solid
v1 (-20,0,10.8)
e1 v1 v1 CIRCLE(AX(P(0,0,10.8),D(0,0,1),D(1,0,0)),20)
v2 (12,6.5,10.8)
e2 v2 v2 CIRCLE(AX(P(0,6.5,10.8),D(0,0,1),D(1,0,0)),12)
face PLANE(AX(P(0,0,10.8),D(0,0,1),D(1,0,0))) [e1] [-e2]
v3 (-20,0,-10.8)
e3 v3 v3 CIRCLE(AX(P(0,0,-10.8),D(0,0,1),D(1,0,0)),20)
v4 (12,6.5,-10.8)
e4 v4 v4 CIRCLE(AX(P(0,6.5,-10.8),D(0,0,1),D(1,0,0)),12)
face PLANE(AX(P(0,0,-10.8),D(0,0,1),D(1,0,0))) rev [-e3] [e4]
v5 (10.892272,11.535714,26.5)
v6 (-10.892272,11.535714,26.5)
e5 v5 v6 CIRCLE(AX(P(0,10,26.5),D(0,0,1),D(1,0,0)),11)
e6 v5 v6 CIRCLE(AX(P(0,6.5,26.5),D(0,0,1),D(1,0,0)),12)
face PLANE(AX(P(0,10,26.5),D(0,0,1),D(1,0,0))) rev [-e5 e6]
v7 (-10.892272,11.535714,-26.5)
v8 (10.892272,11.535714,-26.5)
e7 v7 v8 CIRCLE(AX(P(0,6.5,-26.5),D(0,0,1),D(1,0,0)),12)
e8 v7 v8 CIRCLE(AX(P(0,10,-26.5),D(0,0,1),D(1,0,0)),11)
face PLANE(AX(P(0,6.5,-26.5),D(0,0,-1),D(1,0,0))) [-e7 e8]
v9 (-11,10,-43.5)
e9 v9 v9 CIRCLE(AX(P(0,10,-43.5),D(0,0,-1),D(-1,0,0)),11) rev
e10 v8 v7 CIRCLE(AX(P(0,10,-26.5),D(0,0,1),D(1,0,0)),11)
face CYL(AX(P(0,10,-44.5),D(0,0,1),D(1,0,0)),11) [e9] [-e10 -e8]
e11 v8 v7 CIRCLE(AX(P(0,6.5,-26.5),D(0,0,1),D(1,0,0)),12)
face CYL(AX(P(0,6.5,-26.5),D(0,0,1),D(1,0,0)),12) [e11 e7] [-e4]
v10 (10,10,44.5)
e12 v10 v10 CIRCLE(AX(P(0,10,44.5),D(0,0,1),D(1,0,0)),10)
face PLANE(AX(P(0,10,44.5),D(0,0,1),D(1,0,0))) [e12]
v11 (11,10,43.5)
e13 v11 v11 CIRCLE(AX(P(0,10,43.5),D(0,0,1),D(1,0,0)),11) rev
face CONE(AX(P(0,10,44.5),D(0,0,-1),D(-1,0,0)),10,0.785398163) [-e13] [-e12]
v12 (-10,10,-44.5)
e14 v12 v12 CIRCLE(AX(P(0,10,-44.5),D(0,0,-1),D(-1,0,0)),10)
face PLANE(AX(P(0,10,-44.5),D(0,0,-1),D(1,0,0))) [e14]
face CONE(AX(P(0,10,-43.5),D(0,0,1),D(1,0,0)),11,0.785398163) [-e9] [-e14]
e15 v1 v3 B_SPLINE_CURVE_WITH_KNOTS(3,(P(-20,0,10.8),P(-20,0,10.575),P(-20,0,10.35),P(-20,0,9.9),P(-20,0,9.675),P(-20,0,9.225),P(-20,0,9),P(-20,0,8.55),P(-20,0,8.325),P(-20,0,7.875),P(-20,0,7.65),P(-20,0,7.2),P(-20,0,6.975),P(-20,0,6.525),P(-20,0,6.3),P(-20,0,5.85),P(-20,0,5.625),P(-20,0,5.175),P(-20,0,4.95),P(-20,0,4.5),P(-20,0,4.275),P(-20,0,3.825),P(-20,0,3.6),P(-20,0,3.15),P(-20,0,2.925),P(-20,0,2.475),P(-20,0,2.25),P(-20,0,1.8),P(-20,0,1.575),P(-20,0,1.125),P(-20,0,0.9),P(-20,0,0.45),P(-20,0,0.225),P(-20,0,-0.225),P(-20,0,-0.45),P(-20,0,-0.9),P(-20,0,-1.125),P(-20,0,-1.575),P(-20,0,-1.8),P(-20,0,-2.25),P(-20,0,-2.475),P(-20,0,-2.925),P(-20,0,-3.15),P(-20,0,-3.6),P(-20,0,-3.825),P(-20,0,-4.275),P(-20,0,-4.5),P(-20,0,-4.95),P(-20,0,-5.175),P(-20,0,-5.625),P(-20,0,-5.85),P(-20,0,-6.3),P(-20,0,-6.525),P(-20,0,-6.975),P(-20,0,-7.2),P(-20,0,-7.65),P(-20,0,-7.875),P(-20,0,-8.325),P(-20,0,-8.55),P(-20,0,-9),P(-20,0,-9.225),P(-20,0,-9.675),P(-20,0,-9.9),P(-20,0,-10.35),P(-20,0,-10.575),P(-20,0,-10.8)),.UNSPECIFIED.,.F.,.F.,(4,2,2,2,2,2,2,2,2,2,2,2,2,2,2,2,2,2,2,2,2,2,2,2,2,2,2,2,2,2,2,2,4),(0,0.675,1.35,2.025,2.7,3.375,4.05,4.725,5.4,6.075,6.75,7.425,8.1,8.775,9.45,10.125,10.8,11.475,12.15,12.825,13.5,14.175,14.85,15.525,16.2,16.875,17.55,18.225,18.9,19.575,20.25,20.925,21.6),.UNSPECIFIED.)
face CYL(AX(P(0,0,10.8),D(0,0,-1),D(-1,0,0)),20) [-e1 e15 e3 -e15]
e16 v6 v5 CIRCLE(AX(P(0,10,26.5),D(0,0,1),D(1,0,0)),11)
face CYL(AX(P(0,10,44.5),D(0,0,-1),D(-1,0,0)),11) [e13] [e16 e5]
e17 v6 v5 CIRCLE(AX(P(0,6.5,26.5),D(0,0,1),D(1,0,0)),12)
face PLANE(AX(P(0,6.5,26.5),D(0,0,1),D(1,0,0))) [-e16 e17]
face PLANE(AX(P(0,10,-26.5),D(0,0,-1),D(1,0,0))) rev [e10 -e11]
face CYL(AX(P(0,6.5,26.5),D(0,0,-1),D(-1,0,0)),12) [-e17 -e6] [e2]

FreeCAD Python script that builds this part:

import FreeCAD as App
import Part
import Sketcher
from FreeCAD import Vector


def edges_at(feature, points):
    """Names of the edges that pass closest to the given points."""
    edges = feature.Shape.Edges
    near = lambda p: min(range(len(edges)), key=lambda i: edges[i].distToShape(Part.Vertex(*p))[0])
    return sorted({f"Edge{near(p) + 1}" for p in points})

doc = App.newDocument("Part")
body = doc.addObject("PartDesign::Body", "Body")

# Sketch on XY plane
sketch1 = body.newObject("Sketcher::SketchObject", "Sketch")
sketch1.AttachmentSupport = (doc.getObject("XY_Plane"), [""])
sketch1.MapMode = "FlatFace"
sketch1.addGeometry(Part.Circle(Vector(0, 0, 0), Vector(0, 0, 1), 20), False)
sketch1.addConstraint([
    Sketcher.Constraint("Coincident", 0, 3, -1, 1),
    Sketcher.Constraint("Diameter", 0, 40.0),
])
pad1 = body.newObject("PartDesign::Pad", "Pad")
pad1.Profile = sketch1
pad1.Length = 21.6
pad1.Midplane = True

# Sketch on XY plane
sketch2 = body.newObject("Sketcher::SketchObject", "Sketch001")
sketch2.AttachmentSupport = (doc.getObject("XY_Plane"), [""])
sketch2.MapMode = "FlatFace"
sketch2.AttachmentOffset = App.Placement(Vector(0, 0, 10.8), App.Rotation())
sketch2.addGeometry(Part.Circle(Vector(0, 6, 0), Vector(0, 0, 1), 12), False)
sketch2.addConstraint([
    Sketcher.Constraint("PointOnObject", 0, 3, -2),
    Sketcher.Constraint("Diameter", 0, 24.0),
    Sketcher.Constraint("DistanceY", -1, 1, 0, 3, 6.5),
])
pad2 = body.newObject("PartDesign::Pad", "Pad001")
pad2.Profile = sketch2
pad2.Length = 15.7

# Sketch on XY plane
sketch3 = body.newObject("Sketcher::SketchObject", "Sketch002")
sketch3.AttachmentSupport = (doc.getObject("XY_Plane"), [""])
sketch3.MapMode = "FlatFace"
sketch3.AttachmentOffset = App.Placement(Vector(0, 0, 26.5), App.Rotation())
sketch3.addGeometry(Part.Circle(Vector(0, 10, 0), Vector(0, 0, 1), 11), False)
sketch3.addConstraint([
    Sketcher.Constraint("PointOnObject", 0, 3, -2),
    Sketcher.Constraint("Diameter", 0, 22.0),
    Sketcher.Constraint("DistanceY", -1, 1, 0, 3, 10.0),
])
pad3 = body.newObject("PartDesign::Pad", "Pad002")
pad3.Profile = sketch3
pad3.Length = 18
doc.recompute()

chamfer = body.newObject("PartDesign::Chamfer", "Chamfer")
chamfer.Base = (pad3, edges_at(pad3, [(10.892, 8.464, 44.5)]))
chamfer.Size = 1
doc.recompute()

mirrored = body.newObject("PartDesign::Mirrored", "Mirrored")
mirrored.Originals = [pad2, pad3]
mirrored.MirrorPlane = (doc.getObject("XY_Plane"), [""])
body.Tip = mirrored
doc.recompute()

chamfer2 = body.newObject("PartDesign::Chamfer", "Chamfer001")
chamfer2.Base = (mirrored, edges_at(mirrored, [(10.892, 8.464, -44.5)]))
chamfer2.Size = 1

doc.recompute()
